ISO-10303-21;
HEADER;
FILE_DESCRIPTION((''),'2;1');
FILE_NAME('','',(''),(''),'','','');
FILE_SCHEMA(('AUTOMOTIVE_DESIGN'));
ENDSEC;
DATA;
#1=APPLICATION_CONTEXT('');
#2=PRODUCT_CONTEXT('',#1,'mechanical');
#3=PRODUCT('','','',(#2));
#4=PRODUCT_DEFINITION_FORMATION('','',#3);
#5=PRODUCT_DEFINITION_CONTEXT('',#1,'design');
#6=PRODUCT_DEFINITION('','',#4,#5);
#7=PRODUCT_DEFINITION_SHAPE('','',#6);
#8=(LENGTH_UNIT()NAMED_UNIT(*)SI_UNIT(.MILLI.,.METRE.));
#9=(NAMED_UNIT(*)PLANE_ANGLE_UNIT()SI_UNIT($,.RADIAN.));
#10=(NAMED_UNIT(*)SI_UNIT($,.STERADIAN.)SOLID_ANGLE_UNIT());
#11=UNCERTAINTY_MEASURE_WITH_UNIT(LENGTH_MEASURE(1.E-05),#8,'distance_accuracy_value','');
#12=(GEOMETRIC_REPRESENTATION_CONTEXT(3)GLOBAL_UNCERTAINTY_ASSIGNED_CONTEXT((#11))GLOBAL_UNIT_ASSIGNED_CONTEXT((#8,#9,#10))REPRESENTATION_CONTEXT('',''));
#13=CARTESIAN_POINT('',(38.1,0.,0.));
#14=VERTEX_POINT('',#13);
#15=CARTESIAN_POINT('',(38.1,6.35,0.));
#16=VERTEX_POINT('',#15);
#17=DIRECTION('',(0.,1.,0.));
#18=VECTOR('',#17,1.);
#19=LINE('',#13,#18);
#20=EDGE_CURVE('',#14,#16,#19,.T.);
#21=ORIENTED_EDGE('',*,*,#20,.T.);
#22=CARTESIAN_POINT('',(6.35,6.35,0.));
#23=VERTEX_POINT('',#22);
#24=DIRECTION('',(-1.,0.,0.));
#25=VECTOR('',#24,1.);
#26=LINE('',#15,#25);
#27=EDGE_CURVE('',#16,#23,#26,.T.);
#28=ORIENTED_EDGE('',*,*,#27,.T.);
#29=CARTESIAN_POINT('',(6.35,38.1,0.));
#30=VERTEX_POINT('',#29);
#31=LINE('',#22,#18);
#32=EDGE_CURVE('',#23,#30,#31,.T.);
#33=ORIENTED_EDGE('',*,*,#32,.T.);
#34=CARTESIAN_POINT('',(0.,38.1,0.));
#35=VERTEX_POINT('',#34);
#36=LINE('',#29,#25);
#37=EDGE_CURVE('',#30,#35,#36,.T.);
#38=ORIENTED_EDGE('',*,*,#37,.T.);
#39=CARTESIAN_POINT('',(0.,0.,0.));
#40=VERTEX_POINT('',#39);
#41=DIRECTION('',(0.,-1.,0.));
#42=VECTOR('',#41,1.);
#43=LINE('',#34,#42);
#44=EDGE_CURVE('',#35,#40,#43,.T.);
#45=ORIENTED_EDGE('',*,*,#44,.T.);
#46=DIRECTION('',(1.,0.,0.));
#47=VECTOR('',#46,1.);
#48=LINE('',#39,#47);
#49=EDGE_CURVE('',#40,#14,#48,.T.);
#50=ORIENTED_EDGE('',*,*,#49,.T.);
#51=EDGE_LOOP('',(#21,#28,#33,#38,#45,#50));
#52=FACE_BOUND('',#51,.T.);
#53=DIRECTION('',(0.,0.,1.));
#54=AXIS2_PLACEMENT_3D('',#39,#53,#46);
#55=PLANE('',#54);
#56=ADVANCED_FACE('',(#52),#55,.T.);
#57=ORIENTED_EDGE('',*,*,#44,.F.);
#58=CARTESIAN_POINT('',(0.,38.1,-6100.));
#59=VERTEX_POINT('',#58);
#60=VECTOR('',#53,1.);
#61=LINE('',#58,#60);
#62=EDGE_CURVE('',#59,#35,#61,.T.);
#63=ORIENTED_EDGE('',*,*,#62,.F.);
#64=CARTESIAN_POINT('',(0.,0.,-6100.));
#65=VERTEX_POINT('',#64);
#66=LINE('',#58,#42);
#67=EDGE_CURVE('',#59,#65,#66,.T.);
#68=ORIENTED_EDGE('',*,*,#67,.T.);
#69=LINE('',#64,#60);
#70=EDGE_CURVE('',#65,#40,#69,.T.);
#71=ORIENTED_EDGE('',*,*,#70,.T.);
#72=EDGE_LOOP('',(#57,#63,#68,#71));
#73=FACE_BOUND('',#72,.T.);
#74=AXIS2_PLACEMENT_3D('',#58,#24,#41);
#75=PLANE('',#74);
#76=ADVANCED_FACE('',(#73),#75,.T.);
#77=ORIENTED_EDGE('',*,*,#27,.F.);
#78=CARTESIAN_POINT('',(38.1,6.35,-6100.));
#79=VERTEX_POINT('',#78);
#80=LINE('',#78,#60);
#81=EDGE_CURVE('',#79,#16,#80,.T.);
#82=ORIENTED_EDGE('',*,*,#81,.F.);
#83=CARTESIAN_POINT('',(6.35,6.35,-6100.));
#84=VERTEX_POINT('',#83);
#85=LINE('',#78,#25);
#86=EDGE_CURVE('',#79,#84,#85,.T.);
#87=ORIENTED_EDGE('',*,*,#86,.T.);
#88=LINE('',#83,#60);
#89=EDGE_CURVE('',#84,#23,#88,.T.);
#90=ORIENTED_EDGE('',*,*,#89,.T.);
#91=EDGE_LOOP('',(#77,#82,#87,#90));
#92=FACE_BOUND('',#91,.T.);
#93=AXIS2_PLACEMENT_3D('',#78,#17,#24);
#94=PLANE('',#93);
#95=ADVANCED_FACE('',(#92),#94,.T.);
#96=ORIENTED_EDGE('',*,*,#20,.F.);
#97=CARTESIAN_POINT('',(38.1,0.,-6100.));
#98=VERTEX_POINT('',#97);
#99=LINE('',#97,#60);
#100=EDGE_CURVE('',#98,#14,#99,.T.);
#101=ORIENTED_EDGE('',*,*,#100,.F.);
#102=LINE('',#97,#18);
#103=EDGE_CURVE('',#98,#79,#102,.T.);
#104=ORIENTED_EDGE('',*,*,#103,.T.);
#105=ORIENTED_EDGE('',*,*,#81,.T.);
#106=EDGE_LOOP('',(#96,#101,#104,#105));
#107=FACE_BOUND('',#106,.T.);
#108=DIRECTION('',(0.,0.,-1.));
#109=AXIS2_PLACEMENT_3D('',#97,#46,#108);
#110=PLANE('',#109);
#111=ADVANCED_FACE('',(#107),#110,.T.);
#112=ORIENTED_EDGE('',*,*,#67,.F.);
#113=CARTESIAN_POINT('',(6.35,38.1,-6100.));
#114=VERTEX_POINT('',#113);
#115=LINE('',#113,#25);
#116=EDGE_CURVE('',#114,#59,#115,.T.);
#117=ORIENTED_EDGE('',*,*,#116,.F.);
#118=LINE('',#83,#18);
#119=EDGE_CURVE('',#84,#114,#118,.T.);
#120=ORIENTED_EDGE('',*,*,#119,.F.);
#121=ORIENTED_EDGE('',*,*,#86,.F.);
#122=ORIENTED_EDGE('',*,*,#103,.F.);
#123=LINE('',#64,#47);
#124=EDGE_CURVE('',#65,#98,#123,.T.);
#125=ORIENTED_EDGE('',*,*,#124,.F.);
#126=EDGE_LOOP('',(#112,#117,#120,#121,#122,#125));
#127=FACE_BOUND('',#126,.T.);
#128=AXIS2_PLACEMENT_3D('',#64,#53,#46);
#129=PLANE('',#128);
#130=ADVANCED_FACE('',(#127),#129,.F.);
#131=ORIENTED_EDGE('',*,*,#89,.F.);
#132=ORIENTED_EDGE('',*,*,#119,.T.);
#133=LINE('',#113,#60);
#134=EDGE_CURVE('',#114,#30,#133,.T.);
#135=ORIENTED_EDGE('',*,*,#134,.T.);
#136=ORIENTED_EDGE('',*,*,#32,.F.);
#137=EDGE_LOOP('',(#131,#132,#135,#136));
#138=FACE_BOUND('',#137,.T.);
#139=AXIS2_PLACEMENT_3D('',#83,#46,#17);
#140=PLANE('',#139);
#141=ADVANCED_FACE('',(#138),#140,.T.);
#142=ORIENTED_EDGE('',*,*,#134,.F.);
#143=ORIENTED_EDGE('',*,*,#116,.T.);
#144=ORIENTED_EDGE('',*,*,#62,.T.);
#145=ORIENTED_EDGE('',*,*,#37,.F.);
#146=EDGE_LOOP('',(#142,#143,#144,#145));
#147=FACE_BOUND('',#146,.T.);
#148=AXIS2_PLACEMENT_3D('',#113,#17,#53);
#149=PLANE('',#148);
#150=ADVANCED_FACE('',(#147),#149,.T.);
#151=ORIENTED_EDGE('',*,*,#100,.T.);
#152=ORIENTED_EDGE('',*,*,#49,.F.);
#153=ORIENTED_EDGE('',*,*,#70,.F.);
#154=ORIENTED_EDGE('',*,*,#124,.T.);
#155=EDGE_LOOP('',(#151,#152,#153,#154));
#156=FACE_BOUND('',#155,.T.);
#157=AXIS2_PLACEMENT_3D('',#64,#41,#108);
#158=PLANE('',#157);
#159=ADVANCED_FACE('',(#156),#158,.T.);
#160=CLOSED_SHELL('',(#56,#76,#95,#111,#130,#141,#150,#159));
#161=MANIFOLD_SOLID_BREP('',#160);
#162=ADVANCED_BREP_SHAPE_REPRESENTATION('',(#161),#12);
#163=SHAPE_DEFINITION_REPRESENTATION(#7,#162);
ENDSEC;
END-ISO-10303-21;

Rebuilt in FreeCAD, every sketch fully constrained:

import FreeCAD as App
import Part
import Sketcher

V = App.Vector
Q = App.Units.Quantity


def add_polygon(sketch, points):
    """Adds a closed chain of lines whose ends are joined by coincident constraints."""
    first, n = sketch.GeometryCount, len(points)
    for a, b in zip(points, points[1:] + points[:1]):
        sketch.addGeometry(Part.LineSegment(App.Vector(*a, 0), App.Vector(*b, 0)), False)
    for i in range(n):
        sketch.addConstraint(Sketcher.Constraint("Coincident", first + i, 2, first + (i + 1) % n, 1))

doc = App.newDocument("Part")
body = doc.addObject("PartDesign::Body", "Body")

# Sketch on XY plane
sketch1 = body.newObject("Sketcher::SketchObject", "Sketch")
sketch1.AttachmentSupport = (doc.getObject("XY_Plane"), [""])
sketch1.MapMode = "FlatFace"
add_polygon(sketch1, [(0, 38.1), (0, 0), (38.1, 0), (38.1, 6.35), (6.35, 6.35), (6.35, 38.1)])  # lines 0-5
sketch1.addConstraint(Sketcher.Constraint("Vertical", 0))
sketch1.addConstraint(Sketcher.Constraint("Horizontal", 1))
sketch1.addConstraint(Sketcher.Constraint("Vertical", 2))
sketch1.addConstraint(Sketcher.Constraint("Horizontal", 3))
sketch1.addConstraint(Sketcher.Constraint("Vertical", 4))
sketch1.addConstraint(Sketcher.Constraint("Horizontal", 5))
sketch1.addConstraint(Sketcher.Constraint("Coincident", 0, 2, -1, 1))
sketch1.addConstraint(Sketcher.Constraint("Equal", 1, 0))
sketch1.addConstraint(Sketcher.Constraint("Equal", 5, 2))
sketch1.addConstraint(Sketcher.Constraint("DistanceX", 1, 1, 1, 2, Q("1.5 in")))
sketch1.addConstraint(Sketcher.Constraint("DistanceX", 3, 2, 3, 1, Q("1.25 in")))
pad1 = body.newObject("PartDesign::Pad", "Pad")
pad1.Profile = sketch1
pad1.Length = 6100
pad1.Reversed = True

doc.recompute()
